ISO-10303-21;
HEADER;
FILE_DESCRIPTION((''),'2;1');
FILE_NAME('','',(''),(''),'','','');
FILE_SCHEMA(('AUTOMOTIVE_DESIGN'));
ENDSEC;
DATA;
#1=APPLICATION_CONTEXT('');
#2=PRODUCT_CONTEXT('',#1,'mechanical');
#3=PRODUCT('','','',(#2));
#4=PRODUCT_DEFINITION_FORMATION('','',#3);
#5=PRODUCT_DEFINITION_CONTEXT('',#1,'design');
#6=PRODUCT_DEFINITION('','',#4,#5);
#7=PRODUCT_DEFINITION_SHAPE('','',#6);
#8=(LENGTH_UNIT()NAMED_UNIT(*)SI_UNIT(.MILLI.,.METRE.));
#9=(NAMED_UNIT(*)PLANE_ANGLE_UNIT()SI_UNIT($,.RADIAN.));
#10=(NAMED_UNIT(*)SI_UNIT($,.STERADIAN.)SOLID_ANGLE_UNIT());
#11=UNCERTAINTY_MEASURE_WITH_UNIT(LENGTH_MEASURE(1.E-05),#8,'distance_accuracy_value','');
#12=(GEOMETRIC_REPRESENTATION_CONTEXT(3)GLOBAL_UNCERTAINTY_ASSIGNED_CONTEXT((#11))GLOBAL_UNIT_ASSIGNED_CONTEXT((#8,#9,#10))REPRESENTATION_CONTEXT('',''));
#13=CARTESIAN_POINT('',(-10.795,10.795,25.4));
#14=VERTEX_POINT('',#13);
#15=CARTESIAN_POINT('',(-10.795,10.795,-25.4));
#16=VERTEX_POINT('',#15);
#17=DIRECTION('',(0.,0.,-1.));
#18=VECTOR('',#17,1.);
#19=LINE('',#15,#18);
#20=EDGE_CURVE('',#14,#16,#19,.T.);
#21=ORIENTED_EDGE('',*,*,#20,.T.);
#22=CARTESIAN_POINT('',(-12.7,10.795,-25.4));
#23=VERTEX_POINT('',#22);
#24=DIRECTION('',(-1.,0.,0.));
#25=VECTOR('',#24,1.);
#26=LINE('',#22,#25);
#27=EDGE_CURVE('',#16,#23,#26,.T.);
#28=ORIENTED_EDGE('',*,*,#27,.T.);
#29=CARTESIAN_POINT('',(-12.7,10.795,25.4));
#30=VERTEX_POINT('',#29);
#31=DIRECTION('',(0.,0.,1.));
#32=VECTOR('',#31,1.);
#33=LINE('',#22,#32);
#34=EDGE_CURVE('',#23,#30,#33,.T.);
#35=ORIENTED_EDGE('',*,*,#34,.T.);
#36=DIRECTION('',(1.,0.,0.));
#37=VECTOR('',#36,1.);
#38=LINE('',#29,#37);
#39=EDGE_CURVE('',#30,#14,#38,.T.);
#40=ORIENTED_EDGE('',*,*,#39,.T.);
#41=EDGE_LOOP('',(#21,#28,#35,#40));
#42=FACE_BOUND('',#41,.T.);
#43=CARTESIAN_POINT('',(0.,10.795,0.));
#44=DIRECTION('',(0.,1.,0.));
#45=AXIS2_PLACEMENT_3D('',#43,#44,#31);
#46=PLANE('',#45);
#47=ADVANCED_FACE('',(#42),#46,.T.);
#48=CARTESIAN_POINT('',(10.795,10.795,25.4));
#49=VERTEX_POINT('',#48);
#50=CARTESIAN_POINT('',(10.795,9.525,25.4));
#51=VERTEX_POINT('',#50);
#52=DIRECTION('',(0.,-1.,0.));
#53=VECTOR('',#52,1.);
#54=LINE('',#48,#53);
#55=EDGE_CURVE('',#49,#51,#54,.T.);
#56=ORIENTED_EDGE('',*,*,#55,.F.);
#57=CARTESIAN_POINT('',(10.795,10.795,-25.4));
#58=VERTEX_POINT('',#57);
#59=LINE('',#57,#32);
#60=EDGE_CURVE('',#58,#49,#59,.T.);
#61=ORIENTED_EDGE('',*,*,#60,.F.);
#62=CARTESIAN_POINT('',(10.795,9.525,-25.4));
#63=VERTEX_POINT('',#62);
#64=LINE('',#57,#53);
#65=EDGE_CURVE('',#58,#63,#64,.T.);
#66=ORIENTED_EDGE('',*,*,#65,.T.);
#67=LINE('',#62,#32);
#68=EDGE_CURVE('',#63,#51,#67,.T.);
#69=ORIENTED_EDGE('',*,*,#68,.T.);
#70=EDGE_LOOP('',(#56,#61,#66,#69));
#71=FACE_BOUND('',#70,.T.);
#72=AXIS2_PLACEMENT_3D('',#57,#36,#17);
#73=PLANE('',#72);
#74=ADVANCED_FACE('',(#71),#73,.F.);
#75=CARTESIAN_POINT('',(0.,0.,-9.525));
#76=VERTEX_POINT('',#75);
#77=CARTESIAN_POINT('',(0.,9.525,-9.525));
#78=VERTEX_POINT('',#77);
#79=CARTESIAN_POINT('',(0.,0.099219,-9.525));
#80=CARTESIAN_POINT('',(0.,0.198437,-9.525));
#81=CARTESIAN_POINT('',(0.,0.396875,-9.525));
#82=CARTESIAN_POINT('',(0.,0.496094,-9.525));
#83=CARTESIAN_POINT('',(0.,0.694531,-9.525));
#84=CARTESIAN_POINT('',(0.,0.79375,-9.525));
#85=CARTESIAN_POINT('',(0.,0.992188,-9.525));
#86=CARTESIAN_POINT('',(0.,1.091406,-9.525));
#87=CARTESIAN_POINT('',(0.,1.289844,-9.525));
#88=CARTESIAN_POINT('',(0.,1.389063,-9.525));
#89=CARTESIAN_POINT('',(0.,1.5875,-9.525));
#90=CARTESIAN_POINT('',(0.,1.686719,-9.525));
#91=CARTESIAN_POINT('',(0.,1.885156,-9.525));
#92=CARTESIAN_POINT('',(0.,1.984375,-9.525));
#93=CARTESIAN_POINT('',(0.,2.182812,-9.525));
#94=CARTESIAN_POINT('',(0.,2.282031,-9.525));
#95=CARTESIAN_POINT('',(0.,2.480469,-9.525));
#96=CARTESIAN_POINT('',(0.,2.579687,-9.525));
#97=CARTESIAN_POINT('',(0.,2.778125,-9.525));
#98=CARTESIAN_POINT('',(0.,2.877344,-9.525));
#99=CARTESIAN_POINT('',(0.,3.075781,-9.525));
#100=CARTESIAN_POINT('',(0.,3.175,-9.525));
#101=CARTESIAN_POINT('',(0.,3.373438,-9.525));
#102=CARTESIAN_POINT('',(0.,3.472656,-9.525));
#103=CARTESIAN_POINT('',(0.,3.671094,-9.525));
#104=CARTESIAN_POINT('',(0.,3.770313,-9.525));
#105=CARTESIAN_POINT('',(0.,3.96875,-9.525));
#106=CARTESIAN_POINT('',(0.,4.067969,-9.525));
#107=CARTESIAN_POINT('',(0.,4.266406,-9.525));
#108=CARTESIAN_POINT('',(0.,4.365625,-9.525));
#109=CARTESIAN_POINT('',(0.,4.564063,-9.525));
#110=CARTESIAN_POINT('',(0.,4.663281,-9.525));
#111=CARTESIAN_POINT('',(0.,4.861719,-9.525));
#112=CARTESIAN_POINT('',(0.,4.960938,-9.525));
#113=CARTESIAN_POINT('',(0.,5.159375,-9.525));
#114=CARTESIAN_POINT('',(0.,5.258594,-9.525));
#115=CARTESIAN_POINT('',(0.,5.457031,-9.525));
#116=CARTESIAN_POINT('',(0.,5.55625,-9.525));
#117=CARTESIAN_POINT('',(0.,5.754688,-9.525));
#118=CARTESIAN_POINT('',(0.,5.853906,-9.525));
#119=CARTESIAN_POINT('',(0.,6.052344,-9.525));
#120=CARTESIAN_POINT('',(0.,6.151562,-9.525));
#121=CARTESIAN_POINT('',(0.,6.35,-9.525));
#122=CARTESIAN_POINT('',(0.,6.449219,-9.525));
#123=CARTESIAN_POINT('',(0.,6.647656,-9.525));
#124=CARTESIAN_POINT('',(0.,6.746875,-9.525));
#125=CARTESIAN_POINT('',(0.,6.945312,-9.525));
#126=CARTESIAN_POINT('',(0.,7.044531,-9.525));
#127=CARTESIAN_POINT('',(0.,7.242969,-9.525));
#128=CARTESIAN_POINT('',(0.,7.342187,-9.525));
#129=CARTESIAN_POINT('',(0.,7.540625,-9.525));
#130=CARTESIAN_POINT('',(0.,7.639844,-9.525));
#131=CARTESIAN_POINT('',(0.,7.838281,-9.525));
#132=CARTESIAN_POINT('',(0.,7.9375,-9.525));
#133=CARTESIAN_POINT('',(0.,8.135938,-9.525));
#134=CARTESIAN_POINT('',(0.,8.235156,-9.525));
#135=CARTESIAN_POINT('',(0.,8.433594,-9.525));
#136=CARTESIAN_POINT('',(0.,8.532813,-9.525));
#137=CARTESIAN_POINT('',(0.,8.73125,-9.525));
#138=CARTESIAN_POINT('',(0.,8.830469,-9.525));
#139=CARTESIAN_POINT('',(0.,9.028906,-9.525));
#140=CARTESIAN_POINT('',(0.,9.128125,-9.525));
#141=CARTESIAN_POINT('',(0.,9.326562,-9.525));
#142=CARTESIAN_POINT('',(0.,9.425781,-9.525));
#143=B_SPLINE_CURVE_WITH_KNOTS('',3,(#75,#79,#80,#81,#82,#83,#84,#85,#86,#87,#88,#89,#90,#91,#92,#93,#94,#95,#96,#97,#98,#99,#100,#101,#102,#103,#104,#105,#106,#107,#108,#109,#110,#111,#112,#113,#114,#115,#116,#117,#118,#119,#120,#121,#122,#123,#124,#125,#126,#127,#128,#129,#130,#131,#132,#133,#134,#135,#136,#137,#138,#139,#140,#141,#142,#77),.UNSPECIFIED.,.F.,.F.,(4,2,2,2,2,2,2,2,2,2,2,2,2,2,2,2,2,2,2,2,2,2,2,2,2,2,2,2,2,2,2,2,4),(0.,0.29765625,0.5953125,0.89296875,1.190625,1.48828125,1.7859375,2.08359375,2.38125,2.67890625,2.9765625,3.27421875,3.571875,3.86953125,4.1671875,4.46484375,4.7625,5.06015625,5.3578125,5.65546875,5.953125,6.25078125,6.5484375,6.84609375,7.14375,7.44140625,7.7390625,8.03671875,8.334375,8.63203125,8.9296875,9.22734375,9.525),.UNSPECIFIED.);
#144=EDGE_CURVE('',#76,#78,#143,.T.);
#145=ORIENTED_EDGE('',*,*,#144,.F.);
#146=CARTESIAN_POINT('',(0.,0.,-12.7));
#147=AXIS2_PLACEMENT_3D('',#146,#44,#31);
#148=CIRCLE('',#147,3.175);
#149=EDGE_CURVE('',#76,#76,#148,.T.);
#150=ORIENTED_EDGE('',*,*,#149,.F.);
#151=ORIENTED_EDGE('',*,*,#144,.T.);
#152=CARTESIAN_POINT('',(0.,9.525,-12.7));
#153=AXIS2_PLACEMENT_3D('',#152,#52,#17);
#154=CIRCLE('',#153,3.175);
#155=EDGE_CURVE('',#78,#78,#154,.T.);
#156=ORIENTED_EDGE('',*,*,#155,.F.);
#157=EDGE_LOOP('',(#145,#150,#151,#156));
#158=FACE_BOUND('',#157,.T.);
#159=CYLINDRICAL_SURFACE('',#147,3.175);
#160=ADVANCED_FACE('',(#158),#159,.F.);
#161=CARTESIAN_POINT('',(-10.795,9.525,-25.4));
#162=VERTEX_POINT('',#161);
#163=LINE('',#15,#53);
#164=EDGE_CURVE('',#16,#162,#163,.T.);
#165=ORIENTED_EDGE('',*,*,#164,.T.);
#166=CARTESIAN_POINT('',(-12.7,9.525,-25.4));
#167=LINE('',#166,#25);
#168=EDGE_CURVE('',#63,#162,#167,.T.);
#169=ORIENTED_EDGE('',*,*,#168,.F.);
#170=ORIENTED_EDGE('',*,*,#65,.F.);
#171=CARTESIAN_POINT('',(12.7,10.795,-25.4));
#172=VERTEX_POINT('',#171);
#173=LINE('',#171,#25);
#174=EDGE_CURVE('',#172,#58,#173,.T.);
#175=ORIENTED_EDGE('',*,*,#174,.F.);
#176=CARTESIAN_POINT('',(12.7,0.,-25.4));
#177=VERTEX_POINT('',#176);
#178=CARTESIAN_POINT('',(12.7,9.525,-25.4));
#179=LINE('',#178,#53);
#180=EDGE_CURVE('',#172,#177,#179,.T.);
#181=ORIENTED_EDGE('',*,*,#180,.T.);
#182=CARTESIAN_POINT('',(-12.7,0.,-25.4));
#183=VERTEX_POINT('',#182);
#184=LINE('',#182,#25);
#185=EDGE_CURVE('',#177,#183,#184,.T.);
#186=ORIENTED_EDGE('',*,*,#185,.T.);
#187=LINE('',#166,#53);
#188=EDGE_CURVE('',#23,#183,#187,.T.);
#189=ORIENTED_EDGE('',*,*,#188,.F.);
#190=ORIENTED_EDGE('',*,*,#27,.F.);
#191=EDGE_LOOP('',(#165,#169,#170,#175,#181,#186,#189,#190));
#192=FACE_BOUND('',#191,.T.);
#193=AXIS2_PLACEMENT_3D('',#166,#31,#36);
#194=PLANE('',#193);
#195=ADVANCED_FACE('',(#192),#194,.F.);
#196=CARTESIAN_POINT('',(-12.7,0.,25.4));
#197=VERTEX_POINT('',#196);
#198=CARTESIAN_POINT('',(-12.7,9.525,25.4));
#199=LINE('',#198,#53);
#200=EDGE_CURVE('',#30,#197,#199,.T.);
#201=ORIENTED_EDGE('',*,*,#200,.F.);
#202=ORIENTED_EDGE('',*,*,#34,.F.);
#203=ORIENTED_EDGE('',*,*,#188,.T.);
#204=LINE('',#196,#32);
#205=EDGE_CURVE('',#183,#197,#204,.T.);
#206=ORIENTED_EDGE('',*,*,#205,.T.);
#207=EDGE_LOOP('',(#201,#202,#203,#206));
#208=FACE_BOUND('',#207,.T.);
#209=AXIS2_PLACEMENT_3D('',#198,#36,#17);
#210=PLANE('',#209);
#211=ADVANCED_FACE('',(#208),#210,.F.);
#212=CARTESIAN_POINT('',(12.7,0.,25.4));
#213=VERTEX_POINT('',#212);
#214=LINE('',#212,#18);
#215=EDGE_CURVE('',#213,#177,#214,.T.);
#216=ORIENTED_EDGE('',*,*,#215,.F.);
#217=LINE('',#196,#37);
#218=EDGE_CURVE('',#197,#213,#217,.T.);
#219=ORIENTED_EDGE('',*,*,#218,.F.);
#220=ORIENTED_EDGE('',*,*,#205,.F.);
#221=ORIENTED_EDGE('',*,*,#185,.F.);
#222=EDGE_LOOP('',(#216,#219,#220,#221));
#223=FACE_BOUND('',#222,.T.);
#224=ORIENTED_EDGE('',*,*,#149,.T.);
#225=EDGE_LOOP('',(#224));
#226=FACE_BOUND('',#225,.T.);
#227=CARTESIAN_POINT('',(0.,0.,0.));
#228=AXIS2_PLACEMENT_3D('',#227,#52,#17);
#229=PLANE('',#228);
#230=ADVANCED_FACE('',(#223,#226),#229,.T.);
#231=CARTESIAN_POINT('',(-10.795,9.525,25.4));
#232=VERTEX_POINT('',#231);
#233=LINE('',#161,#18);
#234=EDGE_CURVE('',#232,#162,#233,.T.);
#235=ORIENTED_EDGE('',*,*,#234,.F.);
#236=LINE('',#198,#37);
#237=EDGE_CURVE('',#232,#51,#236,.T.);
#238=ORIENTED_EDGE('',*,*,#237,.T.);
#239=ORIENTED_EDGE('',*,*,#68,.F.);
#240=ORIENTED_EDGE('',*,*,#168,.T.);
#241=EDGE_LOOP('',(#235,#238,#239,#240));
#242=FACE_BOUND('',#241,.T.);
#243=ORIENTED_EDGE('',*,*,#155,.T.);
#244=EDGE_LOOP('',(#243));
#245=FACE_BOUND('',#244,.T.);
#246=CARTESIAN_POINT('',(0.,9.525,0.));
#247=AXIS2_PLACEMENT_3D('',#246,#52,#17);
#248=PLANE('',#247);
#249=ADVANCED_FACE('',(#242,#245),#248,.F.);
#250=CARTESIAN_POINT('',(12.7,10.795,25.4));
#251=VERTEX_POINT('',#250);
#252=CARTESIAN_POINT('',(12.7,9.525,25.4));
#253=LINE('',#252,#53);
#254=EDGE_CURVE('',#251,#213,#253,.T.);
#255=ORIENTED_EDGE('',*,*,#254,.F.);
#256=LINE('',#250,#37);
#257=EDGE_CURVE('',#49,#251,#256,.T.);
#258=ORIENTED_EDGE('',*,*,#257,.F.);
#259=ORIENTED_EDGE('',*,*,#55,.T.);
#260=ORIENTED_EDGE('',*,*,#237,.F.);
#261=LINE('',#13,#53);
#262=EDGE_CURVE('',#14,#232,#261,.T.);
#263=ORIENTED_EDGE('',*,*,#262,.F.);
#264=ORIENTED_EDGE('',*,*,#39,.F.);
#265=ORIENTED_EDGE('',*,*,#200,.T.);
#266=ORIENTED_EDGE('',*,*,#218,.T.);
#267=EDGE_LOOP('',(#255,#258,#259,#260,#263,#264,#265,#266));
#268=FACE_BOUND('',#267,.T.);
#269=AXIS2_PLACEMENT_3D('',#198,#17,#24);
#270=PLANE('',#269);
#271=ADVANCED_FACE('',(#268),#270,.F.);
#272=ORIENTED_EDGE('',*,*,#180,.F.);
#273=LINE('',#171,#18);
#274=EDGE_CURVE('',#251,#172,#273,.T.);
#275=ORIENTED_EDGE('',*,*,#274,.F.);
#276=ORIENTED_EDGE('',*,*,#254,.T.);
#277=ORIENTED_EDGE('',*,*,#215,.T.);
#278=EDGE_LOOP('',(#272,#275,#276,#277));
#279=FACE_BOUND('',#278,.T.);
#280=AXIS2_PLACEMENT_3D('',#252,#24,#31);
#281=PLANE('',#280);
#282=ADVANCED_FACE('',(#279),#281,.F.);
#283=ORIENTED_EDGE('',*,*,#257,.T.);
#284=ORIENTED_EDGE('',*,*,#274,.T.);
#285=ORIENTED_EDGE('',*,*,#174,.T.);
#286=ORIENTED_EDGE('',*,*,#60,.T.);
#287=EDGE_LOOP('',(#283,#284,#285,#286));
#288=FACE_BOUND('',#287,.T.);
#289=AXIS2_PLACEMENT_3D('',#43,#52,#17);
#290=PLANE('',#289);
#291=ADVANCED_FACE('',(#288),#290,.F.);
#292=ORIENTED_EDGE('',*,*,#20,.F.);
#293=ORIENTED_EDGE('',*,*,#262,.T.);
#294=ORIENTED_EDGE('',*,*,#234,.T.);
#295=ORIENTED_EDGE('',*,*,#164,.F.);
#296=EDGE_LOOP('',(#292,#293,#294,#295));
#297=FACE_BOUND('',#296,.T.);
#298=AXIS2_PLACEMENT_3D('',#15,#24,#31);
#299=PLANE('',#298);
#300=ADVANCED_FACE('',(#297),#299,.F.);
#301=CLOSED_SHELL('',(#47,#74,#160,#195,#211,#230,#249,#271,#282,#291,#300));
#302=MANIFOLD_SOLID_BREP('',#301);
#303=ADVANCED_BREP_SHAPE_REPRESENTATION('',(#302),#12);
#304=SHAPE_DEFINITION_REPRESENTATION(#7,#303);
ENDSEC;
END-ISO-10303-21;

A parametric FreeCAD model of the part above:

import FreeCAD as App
import Part
import Sketcher
Q = App.Units.Quantity

doc = App.newDocument("Part")
body = doc.addObject("PartDesign::Body", "Body")

sketch1 = body.newObject("Sketcher::SketchObject", "Sketch")
sketch1.AttachmentSupport = (doc.getObject("XZ_Plane"), [""])
sketch1.MapMode = "FlatFace"
sketch1.addGeometry([
    Part.LineSegment(App.Vector(-12.7, -25.4, 0), App.Vector(-12.7, 25.4, 0)),
    Part.LineSegment(App.Vector(-12.7, 25.4, 0), App.Vector(12.7, 25.4, 0)),
    Part.LineSegment(App.Vector(12.7, 25.4, 0), App.Vector(12.7, -25.4, 0)),
    Part.LineSegment(App.Vector(12.7, -25.4, 0), App.Vector(-12.7, -25.4, 0)),
], False)
sketch1.addConstraint([
    Sketcher.Constraint("Coincident", 0, 2, 1, 1),
    Sketcher.Constraint("Coincident", 1, 2, 2, 1),
    Sketcher.Constraint("Coincident", 2, 2, 3, 1),
    Sketcher.Constraint("Coincident", 3, 2, 0, 1),
    Sketcher.Constraint("Vertical", 0),
    Sketcher.Constraint("Horizontal", 1),
    Sketcher.Constraint("Vertical", 2),
    Sketcher.Constraint("Horizontal", 3),
    Sketcher.Constraint("Symmetric", 0, 2, 2, 2, -1, 1),
    Sketcher.Constraint("DistanceX", 1, 1, 1, 2, Q("1 in")),
    Sketcher.Constraint("DistanceY", 0, 1, 0, 2, Q("2 in")),
])
pad1 = body.newObject("PartDesign::Pad", "Pad")
pad1.Profile = sketch1
pad1.Length = Q("0.375 in")
pad1.Reversed = True

sketch2 = body.newObject("Sketcher::SketchObject", "Sketch001")
sketch2.AttachmentSupport = (doc.getObject("XZ_Plane"), [""])
sketch2.MapMode = "FlatFace"
sketch2.AttachmentOffset = App.Placement(App.Vector(0, 0, -0.375 * 25.4), App.Rotation())
sketch2.addGeometry([
    Part.LineSegment(App.Vector(-12.7, -25.4, 0), App.Vector(-12.7, 25.4, 0)),
    Part.LineSegment(App.Vector(-12.7, 25.4, 0), App.Vector(-10.795, 25.4, 0)),
    Part.LineSegment(App.Vector(-10.795, 25.4, 0), App.Vector(-10.795, -25.4, 0)),
    Part.LineSegment(App.Vector(-10.795, -25.4, 0), App.Vector(-12.7, -25.4, 0)),
    Part.LineSegment(App.Vector(10.795, -25.4, 0), App.Vector(10.795, 25.4, 0)),
    Part.LineSegment(App.Vector(10.795, 25.4, 0), App.Vector(12.7, 25.4, 0)),
    Part.LineSegment(App.Vector(12.7, 25.4, 0), App.Vector(12.7, -25.4, 0)),
    Part.LineSegment(App.Vector(12.7, -25.4, 0), App.Vector(10.795, -25.4, 0)),
], False)
sketch2.addConstraint([
    Sketcher.Constraint("Coincident", 0, 2, 1, 1),
    Sketcher.Constraint("Coincident", 1, 2, 2, 1),
    Sketcher.Constraint("Coincident", 2, 2, 3, 1),
    Sketcher.Constraint("Coincident", 3, 2, 0, 1),
    Sketcher.Constraint("Coincident", 4, 2, 5, 1),
    Sketcher.Constraint("Coincident", 5, 2, 6, 1),
    Sketcher.Constraint("Coincident", 6, 2, 7, 1),
    Sketcher.Constraint("Coincident", 7, 2, 4, 1),
    Sketcher.Constraint("Vertical", 0),
    Sketcher.Constraint("Horizontal", 1),
    Sketcher.Constraint("Vertical", 2),
    Sketcher.Constraint("Horizontal", 3),
    Sketcher.Constraint("Vertical", 4),
    Sketcher.Constraint("Horizontal", 5),
    Sketcher.Constraint("Vertical", 6),
    Sketcher.Constraint("Horizontal", 7),
    Sketcher.Constraint("Symmetric", 2, 2, 4, 2, -1, 1),
    Sketcher.Constraint("Symmetric", 0, 2, 6, 2, -1, 1),
    Sketcher.Constraint("Horizontal", 1, 2, 4, 2),
    Sketcher.Constraint("DistanceY", 0, 1, 0, 2, Q("2 in")),
    Sketcher.Constraint("DistanceX", 0, 2, 5, 2, Q("1 in")),
    Sketcher.Constraint("DistanceX", 1, 1, 1, 2, Q("0.075 in")),
])
pad2 = body.newObject("PartDesign::Pad", "Pad001")
pad2.Profile = sketch2
pad2.Length = Q("0.05 in")
pad2.Reversed = True

sketch3 = body.newObject("Sketcher::SketchObject", "Sketch002")
sketch3.AttachmentSupport = (doc.getObject("XZ_Plane"), [""])
sketch3.MapMode = "FlatFace"
sketch3.AttachmentOffset = App.Placement(App.Vector(0, 0, -0.375 * 25.4), App.Rotation())
sketch3.addGeometry(Part.Circle(App.Vector(0, -12.7, 0), App.Vector(0, 0, 1), 3.175), False)
sketch3.addConstraint([
    Sketcher.Constraint("PointOnObject", 0, 3, -2),
    Sketcher.Constraint("Diameter", 0, Q("0.25 in")),
    Sketcher.Constraint("DistanceY", 0, 3, -1, 1, Q("0.5 in")),
])
pocket1 = body.newObject("PartDesign::Pocket", "Pocket")
pocket1.Profile = sketch3
pocket1.Type = "ThroughAll"
pocket1.Midplane = True

doc.recompute()
